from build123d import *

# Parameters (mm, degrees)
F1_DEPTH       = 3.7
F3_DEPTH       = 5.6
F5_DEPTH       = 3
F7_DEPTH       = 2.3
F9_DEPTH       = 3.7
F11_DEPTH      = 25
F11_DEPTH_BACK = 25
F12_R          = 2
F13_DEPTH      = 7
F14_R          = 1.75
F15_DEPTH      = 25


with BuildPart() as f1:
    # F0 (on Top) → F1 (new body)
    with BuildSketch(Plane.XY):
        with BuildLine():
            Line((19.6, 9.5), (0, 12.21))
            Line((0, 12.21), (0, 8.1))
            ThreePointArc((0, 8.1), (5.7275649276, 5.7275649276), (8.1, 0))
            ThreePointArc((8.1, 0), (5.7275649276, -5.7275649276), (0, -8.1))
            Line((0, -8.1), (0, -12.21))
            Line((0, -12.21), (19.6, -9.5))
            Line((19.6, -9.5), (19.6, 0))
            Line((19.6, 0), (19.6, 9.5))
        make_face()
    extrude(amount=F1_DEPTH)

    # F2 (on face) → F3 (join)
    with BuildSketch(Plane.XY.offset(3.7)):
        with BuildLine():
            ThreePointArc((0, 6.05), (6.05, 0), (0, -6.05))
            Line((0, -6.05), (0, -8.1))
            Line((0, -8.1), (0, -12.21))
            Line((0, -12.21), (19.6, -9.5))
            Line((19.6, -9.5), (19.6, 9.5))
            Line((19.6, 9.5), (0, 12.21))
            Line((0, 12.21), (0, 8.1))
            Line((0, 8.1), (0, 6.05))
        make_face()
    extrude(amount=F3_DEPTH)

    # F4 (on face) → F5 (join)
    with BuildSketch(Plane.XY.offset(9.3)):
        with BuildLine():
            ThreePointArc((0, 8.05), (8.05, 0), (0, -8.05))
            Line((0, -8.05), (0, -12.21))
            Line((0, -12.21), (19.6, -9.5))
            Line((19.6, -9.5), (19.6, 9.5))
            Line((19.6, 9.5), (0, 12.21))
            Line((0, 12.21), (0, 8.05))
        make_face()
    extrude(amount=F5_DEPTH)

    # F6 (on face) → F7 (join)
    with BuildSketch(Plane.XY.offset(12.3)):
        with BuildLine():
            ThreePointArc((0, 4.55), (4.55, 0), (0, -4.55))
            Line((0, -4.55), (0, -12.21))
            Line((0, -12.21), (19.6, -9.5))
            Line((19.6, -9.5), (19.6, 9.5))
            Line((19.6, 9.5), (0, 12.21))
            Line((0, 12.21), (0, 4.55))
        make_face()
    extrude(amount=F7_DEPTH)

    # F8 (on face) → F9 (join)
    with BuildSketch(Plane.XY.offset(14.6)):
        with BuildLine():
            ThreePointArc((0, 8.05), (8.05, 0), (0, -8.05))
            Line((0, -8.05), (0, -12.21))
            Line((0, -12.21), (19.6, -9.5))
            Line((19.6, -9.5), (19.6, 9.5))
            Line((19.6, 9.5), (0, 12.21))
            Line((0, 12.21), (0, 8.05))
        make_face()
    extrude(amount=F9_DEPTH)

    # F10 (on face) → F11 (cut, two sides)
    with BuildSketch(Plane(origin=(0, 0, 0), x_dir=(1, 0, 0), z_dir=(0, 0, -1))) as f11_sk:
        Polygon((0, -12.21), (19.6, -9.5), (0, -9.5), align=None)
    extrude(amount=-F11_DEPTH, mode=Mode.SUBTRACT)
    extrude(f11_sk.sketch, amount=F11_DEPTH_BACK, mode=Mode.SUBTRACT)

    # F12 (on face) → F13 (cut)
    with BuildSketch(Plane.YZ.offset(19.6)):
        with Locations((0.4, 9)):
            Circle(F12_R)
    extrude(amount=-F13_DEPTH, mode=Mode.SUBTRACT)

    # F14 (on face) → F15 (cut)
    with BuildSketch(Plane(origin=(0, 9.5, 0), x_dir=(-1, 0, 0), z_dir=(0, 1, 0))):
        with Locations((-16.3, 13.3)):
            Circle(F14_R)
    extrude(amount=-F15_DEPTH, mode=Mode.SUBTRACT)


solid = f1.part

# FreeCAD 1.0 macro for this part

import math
import FreeCAD as App
import Part
import Sketcher

V = App.Vector

doc = App.newDocument("Part")
params = doc.addObject("Spreadsheet::Sheet", "Params")
for row, (alias, value) in enumerate([
    ("sketch1_radius", "8.1 mm"),
    ("sketch1_height", "19 mm"),
    ("sketch1_height2", "4.11 mm"),
    ("pad1_length", "3.7 mm"),
    ("sketch2_height", "19 mm"),
    ("sketch2_radius", "6.05 mm"),
    ("sketch2_height2", "6.16 mm"),
    ("pad2_length", "5.6 mm"),
    ("sketch3_height", "19 mm"),
    ("sketch3_radius", "8.05 mm"),
    ("sketch3_height2", "4.16 mm"),
    ("pad3_length", "3 mm"),
    ("sketch4_height", "19 mm"),
    ("sketch4_radius", "4.55 mm"),
    ("sketch4_height2", "7.66 mm"),
    ("pad4_length", "2.3 mm"),
    ("sketch5_height", "19 mm"),
    ("sketch5_radius", "8.05 mm"),
    ("sketch5_height2", "4.16 mm"),
    ("pad5_length", "3.7 mm"),
    ("sketch6_width", "19.6 mm"),
    ("sketch6_height", "2.71 mm"),
    ("sketch7_diameter", "4 mm"),
    ("pocket2_length", "7 mm"),
    ("sketch8_diameter", "3.5 mm"),
    ("pocket3_length", "25 mm"),
], start=1):
    params.set(f"A{row}", alias)
    params.set(f"B{row}", "=" + value)
    params.setAlias(f"B{row}", alias)

body = doc.addObject("PartDesign::Body", "Body")

# Sketch on XY plane
sketch1 = body.newObject("Sketcher::SketchObject", "Sketch")
sketch1.AttachmentSupport = (doc.getObject("XY_Plane"), [""])
sketch1.MapMode = "FlatFace"
sketch1.addGeometry([
    Part.LineSegment(V(19.6, 9.5, 0), V(0, 12.2, 0)),  # 0
    Part.LineSegment(V(0, 12.2, 0), V(0, 8.1, 0)),  # 1
    Part.ArcOfCircle(Part.Circle(V(0, 0, 0), V(0, 0, 1), 8.1), math.radians(0), math.radians(90)),  # 2
    Part.ArcOfCircle(Part.Circle(V(0, 0, 0), V(0, 0, 1), 8.1), math.radians(-90), math.radians(0)),  # 3
    Part.LineSegment(V(0, -8.1, 0), V(0, -12.2, 0)),  # 4
    Part.LineSegment(V(0, -12.2, 0), V(19.6, -9.5, 0)),  # 5
    Part.LineSegment(V(19.6, -9.5, 0), V(19.6, 9.5, 0)),  # 6
], False)
sketch1.addConstraint([
    Sketcher.Constraint("Coincident", 0, 2, 1, 1),
    Sketcher.Constraint("Coincident", 1, 2, 2, 2),
    Sketcher.Constraint("Tangent", 2, 1, 3, 2),
    Sketcher.Constraint("Coincident", 3, 1, 4, 1),
    Sketcher.Constraint("Coincident", 4, 2, 5, 1),
    Sketcher.Constraint("Coincident", 5, 2, 6, 1),
    Sketcher.Constraint("Coincident", 6, 2, 0, 1),
    Sketcher.Constraint("Vertical", 1),
    Sketcher.Constraint("Vertical", 4),
    Sketcher.Constraint("Vertical", 6),
    Sketcher.Constraint("Coincident", 2, 3, -1, 1),
    Sketcher.Constraint("Equal", 2, 3),
    Sketcher.Constraint("Symmetric", 0, 2, 4, 2, -1, 1),
    Sketcher.Constraint("PointOnObject", 0, 2, -2),
    Sketcher.Constraint("PointOnObject", 2, 1, -1),
    Sketcher.Constraint("Equal", 0, 5),
    Sketcher.Constraint("Radius", 2, 8.1),
    Sketcher.Constraint("DistanceY", 6, 1, 6, 2, 19.0),
    Sketcher.Constraint("DistanceY", 1, 2, 1, 1, 4.11),
    Sketcher.Constraint("DistanceX", -1, 1, 5, 2, 19.6),
])
sketch1.setExpression("Constraints[16]", "Params.sketch1_radius")
sketch1.setExpression("Constraints[17]", "Params.sketch1_height")
sketch1.setExpression("Constraints[18]", "Params.sketch1_height2")
pad1 = body.newObject("PartDesign::Pad", "Pad")
pad1.Profile = sketch1
pad1.setExpression("Length", "Params.pad1_length")

# Sketch on XY plane
sketch2 = body.newObject("Sketcher::SketchObject", "Sketch001")
sketch2.AttachmentSupport = (doc.getObject("XY_Plane"), [""])
sketch2.MapMode = "FlatFace"
sketch2.AttachmentOffset = App.Placement(V(0, 0, 3.7), App.Rotation())
sketch2.addGeometry([
    Part.ArcOfCircle(Part.Circle(V(0, 0, 0), V(0, 0, 1), 6), math.radians(-90), math.radians(90)),  # 0
    Part.LineSegment(V(0, -6, 0), V(0, -12, 0)),  # 1
    Part.LineSegment(V(0, -12, 0), V(20, -10, 0)),  # 2
    Part.LineSegment(V(20, -10, 0), V(20, 10, 0)),  # 3
    Part.LineSegment(V(20, 10, 0), V(0, 12, 0)),  # 4
    Part.LineSegment(V(0, 12, 0), V(0, 6, 0)),  # 5
], False)
sketch2.addConstraint([
    Sketcher.Constraint("Coincident", 0, 1, 1, 1),
    Sketcher.Constraint("Coincident", 1, 2, 2, 1),
    Sketcher.Constraint("Coincident", 2, 2, 3, 1),
    Sketcher.Constraint("Coincident", 3, 2, 4, 1),
    Sketcher.Constraint("Coincident", 4, 2, 5, 1),
    Sketcher.Constraint("Coincident", 5, 2, 0, 2),
    Sketcher.Constraint("Vertical", 1),
    Sketcher.Constraint("Vertical", 3),
    Sketcher.Constraint("Vertical", 5),
    Sketcher.Constraint("Coincident", 0, 3, -1, 1),
    Sketcher.Constraint("Symmetric", 1, 2, 4, 2, -1, 1),
    Sketcher.Constraint("PointOnObject", 0, 1, -2),
    Sketcher.Constraint("Equal", 2, 4),
    Sketcher.Constraint("DistanceY", 3, 1, 3, 2, 19.0),
    Sketcher.Constraint("Radius", 0, 6.05),
    Sketcher.Constraint("DistanceY", 1, 2, 1, 1, 6.16),
    Sketcher.Constraint("DistanceX", -1, 1, 2, 2, 19.6),
])
sketch2.setExpression("Constraints[13]", "Params.sketch2_height")
sketch2.setExpression("Constraints[14]", "Params.sketch2_radius")
sketch2.setExpression("Constraints[15]", "Params.sketch2_height2")
pad2 = body.newObject("PartDesign::Pad", "Pad001")
pad2.Profile = sketch2
pad2.setExpression("Length", "Params.pad2_length")

# Sketch on XY plane
sketch3 = body.newObject("Sketcher::SketchObject", "Sketch002")
sketch3.AttachmentSupport = (doc.getObject("XY_Plane"), [""])
sketch3.MapMode = "FlatFace"
sketch3.AttachmentOffset = App.Placement(V(0, 0, 9.3), App.Rotation())
sketch3.addGeometry([
    Part.ArcOfCircle(Part.Circle(V(0, 0, 0), V(0, 0, 1), 8.1), math.radians(-90), math.radians(90)),  # 0
    Part.LineSegment(V(0, -8.1, 0), V(0, -12.2, 0)),  # 1
    Part.LineSegment(V(0, -12.2, 0), V(19.6, -9.5, 0)),  # 2
    Part.LineSegment(V(19.6, -9.5, 0), V(19.6, 9.5, 0)),  # 3
    Part.LineSegment(V(19.6, 9.5, 0), V(0, 12.2, 0)),  # 4
    Part.LineSegment(V(0, 12.2, 0), V(0, 8.1, 0)),  # 5
], False)
sketch3.addConstraint([
    Sketcher.Constraint("Coincident", 0, 1, 1, 1),
    Sketcher.Constraint("Coincident", 1, 2, 2, 1),
    Sketcher.Constraint("Coincident", 2, 2, 3, 1),
    Sketcher.Constraint("Coincident", 3, 2, 4, 1),
    Sketcher.Constraint("Coincident", 4, 2, 5, 1),
    Sketcher.Constraint("Coincident", 5, 2, 0, 2),
    Sketcher.Constraint("Vertical", 1),
    Sketcher.Constraint("Vertical", 3),
    Sketcher.Constraint("Vertical", 5),
    Sketcher.Constraint("Coincident", 0, 3, -1, 1),
    Sketcher.Constraint("Symmetric", 1, 2, 4, 2, -1, 1),
    Sketcher.Constraint("PointOnObject", 0, 1, -2),
    Sketcher.Constraint("Equal", 2, 4),
    Sketcher.Constraint("DistanceY", 3, 1, 3, 2, 19.0),
    Sketcher.Constraint("Radius", 0, 8.05),
    Sketcher.Constraint("DistanceY", 1, 2, 1, 1, 4.16),
    Sketcher.Constraint("DistanceX", -1, 1, 2, 2, 19.6),
])
sketch3.setExpression("Constraints[13]", "Params.sketch3_height")
sketch3.setExpression("Constraints[14]", "Params.sketch3_radius")
sketch3.setExpression("Constraints[15]", "Params.sketch3_height2")
pad3 = body.newObject("PartDesign::Pad", "Pad002")
pad3.Profile = sketch3
pad3.setExpression("Length", "Params.pad3_length")

# Sketch on XY plane
sketch4 = body.newObject("Sketcher::SketchObject", "Sketch003")
sketch4.AttachmentSupport = (doc.getObject("XY_Plane"), [""])
sketch4.MapMode = "FlatFace"
sketch4.AttachmentOffset = App.Placement(V(0, 0, 12.3), App.Rotation())
sketch4.addGeometry([
    Part.ArcOfCircle(Part.Circle(V(0, 0, 0), V(0, 0, 1), 4.5), math.radians(-90), math.radians(90)),  # 0
    Part.LineSegment(V(0, -4.5, 0), V(0, -12.2, 0)),  # 1
    Part.LineSegment(V(0, -12.2, 0), V(19.6, -9.5, 0)),  # 2
    Part.LineSegment(V(19.6, -9.5, 0), V(19.6, 9.5, 0)),  # 3
    Part.LineSegment(V(19.6, 9.5, 0), V(0, 12.2, 0)),  # 4
    Part.LineSegment(V(0, 12.2, 0), V(0, 4.5, 0)),  # 5
], False)
sketch4.addConstraint([
    Sketcher.Constraint("Coincident", 0, 1, 1, 1),
    Sketcher.Constraint("Coincident", 1, 2, 2, 1),
    Sketcher.Constraint("Coincident", 2, 2, 3, 1),
    Sketcher.Constraint("Coincident", 3, 2, 4, 1),
    Sketcher.Constraint("Coincident", 4, 2, 5, 1),
    Sketcher.Constraint("Coincident", 5, 2, 0, 2),
    Sketcher.Constraint("Vertical", 1),
    Sketcher.Constraint("Vertical", 3),
    Sketcher.Constraint("Vertical", 5),
    Sketcher.Constraint("Coincident", 0, 3, -1, 1),
    Sketcher.Constraint("Symmetric", 1, 2, 4, 2, -1, 1),
    Sketcher.Constraint("PointOnObject", 0, 1, -2),
    Sketcher.Constraint("Equal", 2, 4),
    Sketcher.Constraint("DistanceY", 3, 1, 3, 2, 19.0),
    Sketcher.Constraint("Radius", 0, 4.55),
    Sketcher.Constraint("DistanceY", 1, 2, 1, 1, 7.66),
    Sketcher.Constraint("DistanceX", -1, 1, 2, 2, 19.6),
])
sketch4.setExpression("Constraints[13]", "Params.sketch4_height")
sketch4.setExpression("Constraints[14]", "Params.sketch4_radius")
sketch4.setExpression("Constraints[15]", "Params.sketch4_height2")
pad4 = body.newObject("PartDesign::Pad", "Pad003")
pad4.Profile = sketch4
pad4.setExpression("Length", "Params.pad4_length")

# Sketch on XY plane
sketch5 = body.newObject("Sketcher::SketchObject", "Sketch004")
sketch5.AttachmentSupport = (doc.getObject("XY_Plane"), [""])
sketch5.MapMode = "FlatFace"
sketch5.AttachmentOffset = App.Placement(V(0, 0, 14.6), App.Rotation())
sketch5.addGeometry([
    Part.ArcOfCircle(Part.Circle(V(0, 0, 0), V(0, 0, 1), 8.1), math.radians(-90), math.radians(90)),  # 0
    Part.LineSegment(V(0, -8.1, 0), V(0, -12.2, 0)),  # 1
    Part.LineSegment(V(0, -12.2, 0), V(19.6, -9.5, 0)),  # 2
    Part.LineSegment(V(19.6, -9.5, 0), V(19.6, 9.5, 0)),  # 3
    Part.LineSegment(V(19.6, 9.5, 0), V(0, 12.2, 0)),  # 4
    Part.LineSegment(V(0, 12.2, 0), V(0, 8.1, 0)),  # 5
], False)
sketch5.addConstraint([
    Sketcher.Constraint("Coincident", 0, 1, 1, 1),
    Sketcher.Constraint("Coincident", 1, 2, 2, 1),
    Sketcher.Constraint("Coincident", 2, 2, 3, 1),
    Sketcher.Constraint("Coincident", 3, 2, 4, 1),
    Sketcher.Constraint("Coincident", 4, 2, 5, 1),
    Sketcher.Constraint("Coincident", 5, 2, 0, 2),
    Sketcher.Constraint("Vertical", 1),
    Sketcher.Constraint("Vertical", 3),
    Sketcher.Constraint("Vertical", 5),
    Sketcher.Constraint("Coincident", 0, 3, -1, 1),
    Sketcher.Constraint("Symmetric", 1, 2, 4, 2, -1, 1),
    Sketcher.Constraint("PointOnObject", 0, 1, -2),
    Sketcher.Constraint("Equal", 2, 4),
    Sketcher.Constraint("DistanceY", 3, 1, 3, 2, 19.0),
    Sketcher.Constraint("Radius", 0, 8.05),
    Sketcher.Constraint("DistanceY", 1, 2, 1, 1, 4.16),
    Sketcher.Constraint("DistanceX", -1, 1, 2, 2, 19.6),
])
sketch5.setExpression("Constraints[13]", "Params.sketch5_height")
sketch5.setExpression("Constraints[14]", "Params.sketch5_radius")
sketch5.setExpression("Constraints[15]", "Params.sketch5_height2")
pad5 = body.newObject("PartDesign::Pad", "Pad004")
pad5.Profile = sketch5
pad5.setExpression("Length", "Params.pad5_length")

# Sketch on XY plane
sketch6 = body.newObject("Sketcher::SketchObject", "Sketch005")
sketch6.AttachmentSupport = (doc.getObject("XY_Plane"), [""])
sketch6.MapMode = "FlatFace"
sketch6.addGeometry([
    Part.LineSegment(V(0, 12.2, 0), V(19.6, 9.5, 0)),
    Part.LineSegment(V(19.6, 9.5, 0), V(0, 9.5, 0)),
    Part.LineSegment(V(0, 9.5, 0), V(0, 12.2, 0)),
], False)
sketch6.addConstraint([
    Sketcher.Constraint("Coincident", 0, 2, 1, 1),
    Sketcher.Constraint("Coincident", 1, 2, 2, 1),
    Sketcher.Constraint("Coincident", 2, 2, 0, 1),
    Sketcher.Constraint("Horizontal", 1),
    Sketcher.Constraint("Vertical", 2),
    Sketcher.Constraint("PointOnObject", 1, 2, -2),
    Sketcher.Constraint("DistanceX", 1, 2, 1, 1, 19.6),
    Sketcher.Constraint("DistanceY", 2, 1, 2, 2, 2.71),
    Sketcher.Constraint("DistanceY", -1, 1, 0, 2, 9.5),
])
sketch6.setExpression("Constraints[6]", "Params.sketch6_width")
sketch6.setExpression("Constraints[7]", "Params.sketch6_height")
pocket1 = body.newObject("PartDesign::Pocket", "Pocket")
pocket1.Profile = sketch6
pocket1.Type = "ThroughAll"
pocket1.Midplane = True

# Sketch on YZ plane
sketch7 = body.newObject("Sketcher::SketchObject", "Sketch006")
sketch7.AttachmentSupport = (doc.getObject("YZ_Plane"), [""])
sketch7.MapMode = "FlatFace"
sketch7.AttachmentOffset = App.Placement(V(0, 0, 19.6), App.Rotation())
sketch7.addGeometry(Part.Circle(V(0.4, 9, 0), V(0, 0, 1), 2), False)
sketch7.addConstraint([
    Sketcher.Constraint("Diameter", 0, 4.0),
    Sketcher.Constraint("DistanceY", -1, 1, 0, 3, 9.0),
    Sketcher.Constraint("DistanceX", -1, 1, 0, 3, 0.4),
])
sketch7.setExpression("Constraints[0]", "Params.sketch7_diameter")
pocket2 = body.newObject("PartDesign::Pocket", "Pocket001")
pocket2.Profile = sketch7
pocket2.setExpression("Length", "Params.pocket2_length")

# Sketch on XZ plane
sketch8 = body.newObject("Sketcher::SketchObject", "Sketch007")
sketch8.AttachmentSupport = (doc.getObject("XZ_Plane"), [""])
sketch8.MapMode = "FlatFace"
sketch8.AttachmentOffset = App.Placement(V(0, 0, -9.5), App.Rotation())
sketch8.addGeometry(Part.Circle(V(16.3, 13.3, 0), V(0, 0, 1), 1.8), False)
sketch8.addConstraint([
    Sketcher.Constraint("Diameter", 0, 3.5),
    Sketcher.Constraint("DistanceX", -1, 1, 0, 3, 16.3),
    Sketcher.Constraint("DistanceY", -1, 1, 0, 3, 13.3),
])
sketch8.setExpression("Constraints[0]", "Params.sketch8_diameter")
pocket3 = body.newObject("PartDesign::Pocket", "Pocket002")
pocket3.Profile = sketch8
pocket3.setExpression("Length", "Params.pocket3_length")
pocket3.Reversed = True

doc.recompute()
